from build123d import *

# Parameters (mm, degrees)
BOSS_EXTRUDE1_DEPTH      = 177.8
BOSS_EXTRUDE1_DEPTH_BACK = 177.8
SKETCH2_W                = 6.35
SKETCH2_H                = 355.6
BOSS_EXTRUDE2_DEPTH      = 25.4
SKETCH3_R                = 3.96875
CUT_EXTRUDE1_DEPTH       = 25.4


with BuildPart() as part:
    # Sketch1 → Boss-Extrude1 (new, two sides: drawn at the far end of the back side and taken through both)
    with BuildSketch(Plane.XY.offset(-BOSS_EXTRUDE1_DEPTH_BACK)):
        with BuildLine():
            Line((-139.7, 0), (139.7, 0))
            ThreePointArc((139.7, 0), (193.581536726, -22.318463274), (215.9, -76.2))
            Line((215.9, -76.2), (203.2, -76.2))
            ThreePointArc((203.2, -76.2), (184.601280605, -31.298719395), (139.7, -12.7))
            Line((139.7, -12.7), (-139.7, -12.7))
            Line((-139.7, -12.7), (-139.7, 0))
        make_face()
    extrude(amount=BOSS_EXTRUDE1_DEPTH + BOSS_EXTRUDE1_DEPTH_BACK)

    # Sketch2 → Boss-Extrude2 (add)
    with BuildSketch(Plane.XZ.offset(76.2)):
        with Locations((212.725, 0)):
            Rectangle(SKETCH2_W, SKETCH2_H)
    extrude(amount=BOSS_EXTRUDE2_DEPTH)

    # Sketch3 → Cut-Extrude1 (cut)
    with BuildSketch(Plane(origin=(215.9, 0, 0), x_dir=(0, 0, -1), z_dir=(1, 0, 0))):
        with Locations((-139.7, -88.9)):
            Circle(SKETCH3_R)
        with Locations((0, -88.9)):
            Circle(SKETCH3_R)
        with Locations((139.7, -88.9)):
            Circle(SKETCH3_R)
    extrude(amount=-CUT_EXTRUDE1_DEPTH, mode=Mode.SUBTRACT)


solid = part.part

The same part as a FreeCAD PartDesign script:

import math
import FreeCAD as App
import Part
import Sketcher
from FreeCAD import Vector
Q = App.Units.Quantity


def add_polygon(sketch, points):
    """Adds a closed chain of lines whose ends are joined by coincident constraints."""
    first, n = sketch.GeometryCount, len(points)
    for a, b in zip(points, points[1:] + points[:1]):
        sketch.addGeometry(Part.LineSegment(App.Vector(*a, 0), App.Vector(*b, 0)), False)
    for i in range(n):
        sketch.addConstraint(Sketcher.Constraint("Coincident", first + i, 2, first + (i + 1) % n, 1))

doc = App.newDocument("Part")
body = doc.addObject("PartDesign::Body", "Body")

sketch1 = body.newObject("Sketcher::SketchObject", "Sketch")
sketch1.AttachmentSupport = (doc.getObject("XY_Plane"), [""])
sketch1.MapMode = "FlatFace"
sketch1.addGeometry(Part.LineSegment(Vector(139.7, 0, 0), Vector(-139.7, 0, 0)), False)
sketch1.addGeometry(Part.LineSegment(Vector(-139.7, 0, 0), Vector(-139.7, -12.7, 0)), False)
sketch1.addGeometry(Part.LineSegment(Vector(-139.7, -12.7, 0), Vector(139.7, -12.7, 0)), False)
sketch1.addGeometry(Part.ArcOfCircle(Part.Circle(Vector(139.7, -76.2, 0), Vector(0, 0, 1), 63.5), math.radians(0), math.radians(90)), False)
sketch1.addGeometry(Part.LineSegment(Vector(203.2, -76.2, 0), Vector(215.9, -76.2, 0)), False)
sketch1.addGeometry(Part.ArcOfCircle(Part.Circle(Vector(139.7, -76.2, 0), Vector(0, 0, 1), 76.2), math.radians(0), math.radians(90)), False)
sketch1.addConstraint(Sketcher.Constraint("Coincident", 0, 2, 1, 1))
sketch1.addConstraint(Sketcher.Constraint("Coincident", 1, 2, 2, 1))
sketch1.addConstraint(Sketcher.Constraint("Tangent", 2, 2, 3, 2))
sketch1.addConstraint(Sketcher.Constraint("Coincident", 3, 1, 4, 1))
sketch1.addConstraint(Sketcher.Constraint("Coincident", 4, 2, 5, 1))
sketch1.addConstraint(Sketcher.Constraint("Tangent", 5, 2, 0, 1))
sketch1.addConstraint(Sketcher.Constraint("Horizontal", 0))
sketch1.addConstraint(Sketcher.Constraint("Vertical", 1))
sketch1.addConstraint(Sketcher.Constraint("Horizontal", 2))
sketch1.addConstraint(Sketcher.Constraint("Horizontal", 4))
sketch1.addConstraint(Sketcher.Constraint("Coincident", 5, 3, 3, 3))
sketch1.addConstraint(Sketcher.Constraint("Symmetric", 0, 2, 5, 2, -1, 1))
sketch1.addConstraint(Sketcher.Constraint("Horizontal", 5, 3, 3, 1))
sketch1.addConstraint(Sketcher.Constraint("Radius", 5, Q("3 in")))
sketch1.addConstraint(Sketcher.Constraint("Radius", 3, Q("2.5 in")))
sketch1.addConstraint(Sketcher.Constraint("DistanceX", 0, 2, 0, 1, Q("11 in")))
pad1 = body.newObject("PartDesign::Pad", "Pad")
pad1.Profile = sketch1
pad1.Type = "TwoLengths"
pad1.Length = Q("7 in")
pad1.Length2 = Q("7 in")

sketch2 = body.newObject("Sketcher::SketchObject", "Sketch001")
sketch2.AttachmentSupport = (doc.getObject("XZ_Plane"), [""])
sketch2.MapMode = "FlatFace"
sketch2.AttachmentOffset = App.Placement(Vector(0, 0, 3 * 25.4), App.Rotation())
add_polygon(sketch2, [(209.55, 177.8), (209.55, -177.8), (215.9, -177.8), (215.9, 177.8)])
sketch2.addConstraint(Sketcher.Constraint("Vertical", 0))
sketch2.addConstraint(Sketcher.Constraint("Horizontal", 1))
sketch2.addConstraint(Sketcher.Constraint("Vertical", 2))
sketch2.addConstraint(Sketcher.Constraint("Horizontal", 3))
sketch2.addConstraint(Sketcher.Constraint("DistanceY", 0, 2, 0, 1, Q("14 in")))
sketch2.addConstraint(Sketcher.Constraint("DistanceY", 0, 2, -1, 1, Q("7 in")))
sketch2.addConstraint(Sketcher.Constraint("DistanceX", 1, 1, 1, 2, Q("0.25 in")))
sketch2.addConstraint(Sketcher.Constraint("DistanceX", -1, 1, 1, 2, Q("8.5 in")))
pad2 = body.newObject("PartDesign::Pad", "Pad001")
pad2.Profile = sketch2
pad2.Length = Q("1 in")

sketch3 = body.newObject("Sketcher::SketchObject", "Sketch002")
sketch3.AttachmentSupport = (doc.getObject("YZ_Plane"), [""])
sketch3.MapMode = "FlatFace"
sketch3.AttachmentOffset = App.Placement(Vector(0, 0, 8.5 * 25.4), App.Rotation())
sketch3.addGeometry(Part.Circle(Vector(-88.9, 139.7, 0), Vector(0, 0, 1), 3.96875), False)
sketch3.addGeometry(Part.Circle(Vector(-88.9, 0, 0), Vector(0, 0, 1), 3.96875), False)
sketch3.addGeometry(Part.Circle(Vector(-88.9, -139.7, 0), Vector(0, 0, 1), 3.96875), False)
sketch3.addConstraint(Sketcher.Constraint("Equal", 0, 1))
sketch3.addConstraint(Sketcher.Constraint("Equal", 1, 2))
sketch3.addConstraint(Sketcher.Constraint("Symmetric", 0, 3, 2, 3, -1))
sketch3.addConstraint(Sketcher.Constraint("PointOnObject", 1, 3, -1))
sketch3.addConstraint(Sketcher.Constraint("Vertical", 0, 3, 1, 3))
sketch3.addConstraint(Sketcher.Constraint("Diameter", 0, Q("0.3125 in")))
sketch3.addConstraint(Sketcher.Constraint("DistanceY", 2, 3, 0, 3, Q("11 in")))
sketch3.addConstraint(Sketcher.Constraint("DistanceX", 0, 3, -1, 1, Q("3.5 in")))
pocket1 = body.newObject("PartDesign::Pocket", "Pocket")
pocket1.Profile = sketch3
pocket1.Length = Q("1 in")

doc.recompute()
